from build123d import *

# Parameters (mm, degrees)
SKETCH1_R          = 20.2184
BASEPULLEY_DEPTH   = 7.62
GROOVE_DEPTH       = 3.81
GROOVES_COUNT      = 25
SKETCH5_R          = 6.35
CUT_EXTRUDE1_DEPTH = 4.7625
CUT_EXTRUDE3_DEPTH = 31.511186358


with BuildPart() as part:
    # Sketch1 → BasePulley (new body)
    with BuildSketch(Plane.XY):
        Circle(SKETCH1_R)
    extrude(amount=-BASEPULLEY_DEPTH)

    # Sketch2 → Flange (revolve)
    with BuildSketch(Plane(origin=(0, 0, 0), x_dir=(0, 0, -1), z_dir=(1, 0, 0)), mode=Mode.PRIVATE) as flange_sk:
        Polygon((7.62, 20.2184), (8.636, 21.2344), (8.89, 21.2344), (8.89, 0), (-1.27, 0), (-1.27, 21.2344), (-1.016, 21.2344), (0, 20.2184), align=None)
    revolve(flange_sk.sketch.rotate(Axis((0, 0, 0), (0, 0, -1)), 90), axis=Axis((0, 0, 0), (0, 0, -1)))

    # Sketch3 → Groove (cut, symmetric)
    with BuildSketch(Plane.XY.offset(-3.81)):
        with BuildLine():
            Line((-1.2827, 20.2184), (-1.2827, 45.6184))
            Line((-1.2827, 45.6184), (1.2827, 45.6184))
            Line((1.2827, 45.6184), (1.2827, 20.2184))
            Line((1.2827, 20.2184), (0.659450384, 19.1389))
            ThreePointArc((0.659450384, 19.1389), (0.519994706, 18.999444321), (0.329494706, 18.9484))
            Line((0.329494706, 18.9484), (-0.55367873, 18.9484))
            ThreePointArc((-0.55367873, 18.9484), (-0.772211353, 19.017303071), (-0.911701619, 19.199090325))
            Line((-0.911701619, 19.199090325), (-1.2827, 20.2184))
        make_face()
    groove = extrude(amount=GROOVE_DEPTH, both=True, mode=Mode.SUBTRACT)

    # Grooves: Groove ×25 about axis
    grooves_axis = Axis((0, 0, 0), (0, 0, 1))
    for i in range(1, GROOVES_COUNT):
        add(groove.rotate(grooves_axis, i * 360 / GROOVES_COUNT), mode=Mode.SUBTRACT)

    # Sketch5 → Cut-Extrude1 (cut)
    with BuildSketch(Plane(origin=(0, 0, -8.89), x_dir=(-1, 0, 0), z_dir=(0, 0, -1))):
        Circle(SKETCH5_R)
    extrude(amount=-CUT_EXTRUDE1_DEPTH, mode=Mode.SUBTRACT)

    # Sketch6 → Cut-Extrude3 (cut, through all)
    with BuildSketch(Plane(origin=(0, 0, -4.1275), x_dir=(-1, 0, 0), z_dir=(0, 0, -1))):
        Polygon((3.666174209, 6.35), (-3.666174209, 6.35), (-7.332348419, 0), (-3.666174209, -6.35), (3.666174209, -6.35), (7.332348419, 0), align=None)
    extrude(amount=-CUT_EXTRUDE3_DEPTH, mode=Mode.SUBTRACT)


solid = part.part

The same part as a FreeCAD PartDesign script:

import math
import FreeCAD as App
import Part
import Sketcher
Q = App.Units.Quantity

doc = App.newDocument("Part")
body = doc.addObject("PartDesign::Body", "Body")

sketch1 = doc.addObject("Sketcher::SketchObject", "Sketch")
body.addObject(sketch1)
sketch1.AttachmentSupport = (doc.XY_Plane, [""])
sketch1.MapMode = "FlatFace"
sketch1.addGeometry(Part.Circle(App.Vector(0, 0, 0), App.Vector(0, 0, 1), 20.2184), False)
sketch1.addConstraint(Sketcher.Constraint("Coincident", 0, 3, -1, 1))
sketch1.addConstraint(Sketcher.Constraint("Diameter", 0, Q("1.592 in")))
pad1 = doc.addObject("PartDesign::Pad", "Pad")
body.addObject(pad1)
pad1.Profile = sketch1
pad1.Length = Q("0.3 in")
pad1.Reversed = True

sketch2 = doc.addObject("Sketcher::SketchObject", "Sketch001")
body.addObject(sketch2)
sketch2.AttachmentSupport = (doc.YZ_Plane, [""])
sketch2.MapMode = "FlatFace"
sketch2.addGeometry(Part.LineSegment(App.Vector(21.2344, -8.636, 0), App.Vector(20.2184, -7.62, 0)), False)
sketch2.addGeometry(Part.LineSegment(App.Vector(20.2184, -7.62, 0), App.Vector(20.2184, 0, 0)), False)
sketch2.addGeometry(Part.LineSegment(App.Vector(20.2184, 0, 0), App.Vector(21.2344, 1.016, 0)), False)
sketch2.addGeometry(Part.LineSegment(App.Vector(21.2344, 1.016, 0), App.Vector(21.2344, 1.27, 0)), False)
sketch2.addGeometry(Part.LineSegment(App.Vector(21.2344, 1.27, 0), App.Vector(0, 1.27, 0)), False)
sketch2.addGeometry(Part.LineSegment(App.Vector(0, 1.27, 0), App.Vector(0, -8.89, 0)), False)
sketch2.addGeometry(Part.LineSegment(App.Vector(0, -8.89, 0), App.Vector(21.2344, -8.89, 0)), False)
sketch2.addGeometry(Part.LineSegment(App.Vector(21.2344, -8.89, 0), App.Vector(21.2344, -8.636, 0)), False)
sketch2.addConstraint(Sketcher.Constraint("Coincident", 0, 2, 1, 1))
sketch2.addConstraint(Sketcher.Constraint("Coincident", 1, 2, 2, 1))
sketch2.addConstraint(Sketcher.Constraint("Coincident", 2, 2, 3, 1))
sketch2.addConstraint(Sketcher.Constraint("Coincident", 3, 2, 4, 1))
sketch2.addConstraint(Sketcher.Constraint("Coincident", 4, 2, 5, 1))
sketch2.addConstraint(Sketcher.Constraint("Coincident", 5, 2, 6, 1))
sketch2.addConstraint(Sketcher.Constraint("Coincident", 6, 2, 7, 1))
sketch2.addConstraint(Sketcher.Constraint("Coincident", 7, 2, 0, 1))
sketch2.addConstraint(Sketcher.Constraint("Vertical", 1))
sketch2.addConstraint(Sketcher.Constraint("Vertical", 3))
sketch2.addConstraint(Sketcher.Constraint("Horizontal", 4))
sketch2.addConstraint(Sketcher.Constraint("Vertical", 5))
sketch2.addConstraint(Sketcher.Constraint("Horizontal", 6))
sketch2.addConstraint(Sketcher.Constraint("Vertical", 7))
sketch2.addConstraint(Sketcher.Constraint("PointOnObject", 1, 2, -1))
sketch2.addConstraint(Sketcher.Constraint("PointOnObject", 4, 2, -2))
sketch2.addConstraint(Sketcher.Constraint("Perpendicular", 0, 2))
sketch2.addConstraint(Sketcher.Constraint("Vertical", 3, 2, 6, 2))
sketch2.addConstraint(Sketcher.Constraint("Equal", 3, 7))
sketch2.addConstraint(Sketcher.Constraint("Equal", 0, 2))
sketch2.addConstraint(Sketcher.Constraint("DistanceY", 1, 1, 1, 2, Q("0.3 in")))
sketch2.addConstraint(Sketcher.Constraint("DistanceY", 5, 2, 5, 1, Q("0.4 in")))
sketch2.addConstraint(Sketcher.Constraint("DistanceY", 3, 1, 3, 2, Q("0.01 in")))
sketch2.addConstraint(Sketcher.Constraint("DistanceX", 4, 2, 4, 1, Q("0.836 in")))
revolution = doc.addObject("PartDesign::Revolution", "Revolution")
body.addObject(revolution)
revolution.Profile = sketch2
revolution.ReferenceAxis = (sketch2, ["V_Axis"])
revolution.Angle = 360

sketch3 = doc.addObject("Sketcher::SketchObject", "Sketch002")
body.addObject(sketch3)
sketch3.AttachmentSupport = (doc.XY_Plane, [""])
sketch3.MapMode = "FlatFace"
sketch3.AttachmentOffset = App.Placement(App.Vector(0, 0, -0.15 * 25.4), App.Rotation())
sketch3.addGeometry(Part.LineSegment(App.Vector(-1.2827, 45.6184, 0), App.Vector(-1.2827, 20.2184, 0)), False)
sketch3.addGeometry(Part.LineSegment(App.Vector(-1.2827, 20.2184, 0), App.Vector(-0.911702, 19.19909, 0)), False)
sketch3.addGeometry(Part.ArcOfCircle(Part.Circle(App.Vector(-0.553679, 19.3294, 0), App.Vector(0, 0, 1), 0.381), math.radians(-160), math.radians(-90)), False)
sketch3.addGeometry(Part.LineSegment(App.Vector(-0.553679, 18.9484, 0), App.Vector(0.329495, 18.9484, 0)), False)
sketch3.addGeometry(Part.ArcOfCircle(Part.Circle(App.Vector(0.329495, 19.3294, 0), App.Vector(0, 0, 1), 0.381), math.radians(-90), math.radians(-30)), False)
sketch3.addGeometry(Part.LineSegment(App.Vector(0.65945, 19.1389, 0), App.Vector(1.2827, 20.2184, 0)), False)
sketch3.addGeometry(Part.LineSegment(App.Vector(1.2827, 20.2184, 0), App.Vector(1.2827, 45.6184, 0)), False)
sketch3.addGeometry(Part.LineSegment(App.Vector(1.2827, 45.6184, 0), App.Vector(-1.2827, 45.6184, 0)), False)
sketch3.addConstraint(Sketcher.Constraint("Coincident", 0, 2, 1, 1))
sketch3.addConstraint(Sketcher.Constraint("Tangent", 1, 2, 2, 1))
sketch3.addConstraint(Sketcher.Constraint("Tangent", 2, 2, 3, 1))
sketch3.addConstraint(Sketcher.Constraint("Tangent", 3, 2, 4, 1))
sketch3.addConstraint(Sketcher.Constraint("Tangent", 4, 2, 5, 1))
sketch3.addConstraint(Sketcher.Constraint("Coincident", 5, 2, 6, 1))
sketch3.addConstraint(Sketcher.Constraint("Coincident", 6, 2, 7, 1))
sketch3.addConstraint(Sketcher.Constraint("Coincident", 7, 2, 0, 1))
sketch3.addConstraint(Sketcher.Constraint("Vertical", 0))
sketch3.addConstraint(Sketcher.Constraint("Horizontal", 3))
sketch3.addConstraint(Sketcher.Constraint("Vertical", 6))
sketch3.addConstraint(Sketcher.Constraint("Horizontal", 7))
sketch3.addConstraint(Sketcher.Constraint("Equal", 2, 4))
sketch3.addConstraint(Sketcher.Constraint("Symmetric", 0, 2, 5, 2, -2))
sketch3.addConstraint(Sketcher.Constraint("DistanceY", 0, 2, 0, 1, Q("1 in")))
sketch3.addConstraint(Sketcher.Constraint("Angle", 1, Q("-70 deg")))
sketch3.addConstraint(Sketcher.Constraint("Angle", 5, Q("60 deg")))
sketch3.addConstraint(Sketcher.Constraint("Radius", 2, Q("0.015 in")))
sketch3.addConstraint(Sketcher.Constraint("DistanceX", 7, 2, 7, 1, Q("0.101 in")))
sketch3.addConstraint(Sketcher.Constraint("DistanceY", 2, 2, 0, 2, Q("0.05 in")))
sketch3.addConstraint(Sketcher.Constraint("DistanceY", -1, 1, 2, 3, Q("0.761 in")))
pocket1 = doc.addObject("PartDesign::Pocket", "Pocket")
body.addObject(pocket1)
pocket1.Profile = sketch3
pocket1.Length = Q("0.3 in")
pocket1.Midplane = True
doc.recompute()

polarpattern = doc.addObject("PartDesign::PolarPattern", "PolarPattern")
body.addObject(polarpattern)
polarpattern.Originals = [pocket1]
polarpattern.Axis = (doc.Z_Axis, [""])
polarpattern.Angle = 360
polarpattern.Occurrences = 25
body.Tip = polarpattern

sketch4 = doc.addObject("Sketcher::SketchObject", "Sketch003")
body.addObject(sketch4)
sketch4.AttachmentSupport = (doc.XY_Plane, [""])
sketch4.MapMode = "FlatFace"
sketch4.AttachmentOffset = App.Placement(App.Vector(0, 0, -0.35 * 25.4), App.Rotation())
sketch4.addGeometry(Part.Circle(App.Vector(0, 0, 0), App.Vector(0, 0, 1), 6.35), False)
sketch4.addConstraint(Sketcher.Constraint("Coincident", 0, 3, -1, 1))
sketch4.addConstraint(Sketcher.Constraint("Diameter", 0, Q("0.5 in")))
pocket2 = doc.addObject("PartDesign::Pocket", "Pocket001")
body.addObject(pocket2)
pocket2.Profile = sketch4
pocket2.Length = Q("0.1875 in")
pocket2.Reversed = True

sketch5 = doc.addObject("Sketcher::SketchObject", "Sketch004")
body.addObject(sketch5)
sketch5.AttachmentSupport = (doc.XY_Plane, [""])
sketch5.MapMode = "FlatFace"
sketch5.AttachmentOffset = App.Placement(App.Vector(0, 0, -0.1625 * 25.4), App.Rotation())
sketch5.addGeometry(Part.LineSegment(App.Vector(-3.666174, 6.35, 0), App.Vector(3.666174, 6.35, 0)), False)
sketch5.addGeometry(Part.LineSegment(App.Vector(3.666174, 6.35, 0), App.Vector(7.332348, 0, 0)), False)
sketch5.addGeometry(Part.LineSegment(App.Vector(7.332348, 0, 0), App.Vector(3.666174, -6.35, 0)), False)
sketch5.addGeometry(Part.LineSegment(App.Vector(3.666174, -6.35, 0), App.Vector(-3.666174, -6.35, 0)), False)
sketch5.addGeometry(Part.LineSegment(App.Vector(-3.666174, -6.35, 0), App.Vector(-7.332348, 0, 0)), False)
sketch5.addGeometry(Part.LineSegment(App.Vector(-7.332348, 0, 0), App.Vector(-3.666174, 6.35, 0)), False)
sketch5.addConstraint(Sketcher.Constraint("Coincident", 0, 2, 1, 1))
sketch5.addConstraint(Sketcher.Constraint("Coincident", 1, 2, 2, 1))
sketch5.addConstraint(Sketcher.Constraint("Coincident", 2, 2, 3, 1))
sketch5.addConstraint(Sketcher.Constraint("Coincident", 3, 2, 4, 1))
sketch5.addConstraint(Sketcher.Constraint("Coincident", 4, 2, 5, 1))
sketch5.addConstraint(Sketcher.Constraint("Coincident", 5, 2, 0, 1))
sketch5.addConstraint(Sketcher.Constraint("Horizontal", 0))
sketch5.addConstraint(Sketcher.Constraint("Horizontal", 3))
sketch5.addConstraint(Sketcher.Constraint("Symmetric", 0, 2, 3, 2, -1, 1))
sketch5.addConstraint(Sketcher.Constraint("Symmetric", 1, 2, 4, 2, -1, 1))
sketch5.addConstraint(Sketcher.Constraint("PointOnObject", 1, 2, -1))
sketch5.addConstraint(Sketcher.Constraint("Parallel", 2, 5))
sketch5.addConstraint(Sketcher.Constraint("Vertical", 0, 2, 2, 2))
sketch5.addConstraint(Sketcher.Constraint("Angle", 1, Q("-60 deg")))
sketch5.addConstraint(Sketcher.Constraint("DistanceY", 2, 2, 0, 2, Q("0.5 in")))
sketch5.addConstraint(Sketcher.Constraint("DistanceX", 0, 1, 0, 2, 7.332348))
pocket3 = doc.addObject("PartDesign::Pocket", "Pocket002")
body.addObject(pocket3)
pocket3.Profile = sketch5
pocket3.Type = "ThroughAll"
pocket3.Reversed = True

doc.recompute()
